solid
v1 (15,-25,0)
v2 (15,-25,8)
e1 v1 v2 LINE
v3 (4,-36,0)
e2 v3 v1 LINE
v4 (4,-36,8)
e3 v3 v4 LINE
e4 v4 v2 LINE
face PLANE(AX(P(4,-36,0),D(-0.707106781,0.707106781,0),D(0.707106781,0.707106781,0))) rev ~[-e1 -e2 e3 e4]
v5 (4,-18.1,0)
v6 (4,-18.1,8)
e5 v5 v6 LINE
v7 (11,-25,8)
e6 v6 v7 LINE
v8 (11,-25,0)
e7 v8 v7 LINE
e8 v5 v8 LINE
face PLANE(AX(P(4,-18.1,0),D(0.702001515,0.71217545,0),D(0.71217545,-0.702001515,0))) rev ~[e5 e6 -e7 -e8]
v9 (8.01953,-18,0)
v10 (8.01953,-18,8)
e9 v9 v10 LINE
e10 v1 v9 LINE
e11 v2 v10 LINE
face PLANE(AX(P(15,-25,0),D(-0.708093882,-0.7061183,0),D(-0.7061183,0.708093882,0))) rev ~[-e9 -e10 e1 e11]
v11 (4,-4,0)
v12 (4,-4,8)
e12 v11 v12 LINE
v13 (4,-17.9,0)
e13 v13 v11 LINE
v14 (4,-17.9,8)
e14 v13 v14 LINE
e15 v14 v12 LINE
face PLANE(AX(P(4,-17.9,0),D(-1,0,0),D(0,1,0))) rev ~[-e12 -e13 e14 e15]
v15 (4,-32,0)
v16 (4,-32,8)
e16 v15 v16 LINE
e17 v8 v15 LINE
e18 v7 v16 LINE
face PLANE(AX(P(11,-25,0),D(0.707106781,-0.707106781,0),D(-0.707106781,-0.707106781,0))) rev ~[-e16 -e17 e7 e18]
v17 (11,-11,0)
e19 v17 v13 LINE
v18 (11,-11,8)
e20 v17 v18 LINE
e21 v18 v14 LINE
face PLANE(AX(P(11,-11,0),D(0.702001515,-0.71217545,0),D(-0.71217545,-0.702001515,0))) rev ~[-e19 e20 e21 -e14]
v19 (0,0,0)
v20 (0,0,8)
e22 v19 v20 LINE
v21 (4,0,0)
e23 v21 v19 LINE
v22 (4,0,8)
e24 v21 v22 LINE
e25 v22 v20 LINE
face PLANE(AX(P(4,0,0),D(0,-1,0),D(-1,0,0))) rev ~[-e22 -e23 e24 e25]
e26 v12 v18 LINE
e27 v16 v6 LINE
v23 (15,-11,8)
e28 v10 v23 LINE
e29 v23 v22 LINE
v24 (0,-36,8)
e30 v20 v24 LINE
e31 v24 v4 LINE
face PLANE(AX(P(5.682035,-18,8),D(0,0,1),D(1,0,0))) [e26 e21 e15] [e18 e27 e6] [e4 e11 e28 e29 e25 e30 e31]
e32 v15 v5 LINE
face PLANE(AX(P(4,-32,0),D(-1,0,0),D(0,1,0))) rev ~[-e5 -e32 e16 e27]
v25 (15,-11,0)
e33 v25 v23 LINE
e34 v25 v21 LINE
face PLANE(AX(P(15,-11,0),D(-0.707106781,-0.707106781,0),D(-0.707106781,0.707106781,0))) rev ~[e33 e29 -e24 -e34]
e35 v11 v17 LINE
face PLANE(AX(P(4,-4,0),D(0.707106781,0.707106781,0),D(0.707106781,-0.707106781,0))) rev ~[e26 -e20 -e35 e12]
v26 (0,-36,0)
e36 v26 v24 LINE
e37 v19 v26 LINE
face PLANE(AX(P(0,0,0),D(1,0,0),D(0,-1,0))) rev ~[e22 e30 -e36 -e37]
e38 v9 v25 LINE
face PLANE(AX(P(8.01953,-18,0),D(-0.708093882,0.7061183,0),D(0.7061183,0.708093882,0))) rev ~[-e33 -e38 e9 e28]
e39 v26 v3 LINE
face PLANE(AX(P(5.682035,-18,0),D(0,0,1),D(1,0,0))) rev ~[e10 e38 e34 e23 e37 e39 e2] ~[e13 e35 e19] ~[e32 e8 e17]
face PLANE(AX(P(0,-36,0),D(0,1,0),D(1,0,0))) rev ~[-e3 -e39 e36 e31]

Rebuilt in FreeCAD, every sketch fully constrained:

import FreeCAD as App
import Part
import Sketcher

V = App.Vector
Q = App.Units.Quantity


def add_polygon(sketch, points):
    """Adds a closed chain of lines whose ends are joined by coincident constraints."""
    first, n = sketch.GeometryCount, len(points)
    for a, b in zip(points, points[1:] + points[:1]):
        sketch.addGeometry(Part.LineSegment(App.Vector(*a, 0), App.Vector(*b, 0)), False)
    for i in range(n):
        sketch.addConstraint(Sketcher.Constraint("Coincident", first + i, 2, first + (i + 1) % n, 1))

doc = App.newDocument("Part")
params = doc.addObject("Spreadsheet::Sheet", "Params")
for row, (alias, value) in enumerate([
    ("sketch1_width", "4 mm"),
    ("sketch1_height", "36 mm"),
    ("sketch1_height2", "13.9 mm"),
    ("pad1_length", "8 mm"),
], start=1):
    params.set(f"A{row}", alias)
    params.set(f"B{row}", "=" + value)
    params.setAlias(f"B{row}", alias)

body = doc.addObject("PartDesign::Body", "Body")

# Sketch on XY plane
sketch1 = body.newObject("Sketcher::SketchObject", "Sketch")
sketch1.AttachmentSupport = (doc.getObject("XY_Plane"), [""])
sketch1.MapMode = "FlatFace"
add_polygon(sketch1, [(4, 0), (0, 0), (0, -36), (4, -36), (15, -25), (8, -18), (15, -11)])  # lines 0-6
add_polygon(sketch1, [(11, -25), (4, -32), (4, -18.1)])  # lines 7-9
add_polygon(sketch1, [(11, -11), (4, -17.9), (4, -4)])  # lines 10-12
sketch1.addConstraint([
    Sketcher.Constraint("Horizontal", 0),
    Sketcher.Constraint("Vertical", 1),
    Sketcher.Constraint("Horizontal", 2),
    Sketcher.Constraint("Vertical", 8),
    Sketcher.Constraint("Vertical", 11),
    Sketcher.Constraint("Coincident", 0, 2, -1, 1),
    Sketcher.Constraint("Perpendicular", 3, 6),
    Sketcher.Constraint("Perpendicular", 6, 7),
    Sketcher.Constraint("Perpendicular", 7, 12),
    Sketcher.Constraint("Horizontal", 3, 2, 9, 2),
    Sketcher.Constraint("Horizontal", 5, 2, 12, 2),
    Sketcher.Constraint("Vertical", 3, 2, 5, 2),
    Sketcher.Constraint("Vertical", 2, 2, 6, 2),
    Sketcher.Constraint("Vertical", 6, 2, 7, 2),
    Sketcher.Constraint("Vertical", 8, 2, 10, 2),
    Sketcher.Constraint("Vertical", 9, 2, 12, 2),
    Sketcher.Constraint("Equal", 8, 11),
    Sketcher.Constraint("Equal", 4, 5),
    Sketcher.Constraint("Equal", 3, 6),
    Sketcher.Constraint("DistanceX", 0, 2, 0, 1, Q("4 mm")),
    Sketcher.Constraint("DistanceY", 1, 2, 1, 1, Q("36 mm")),
    Sketcher.Constraint("DistanceY", 8, 1, 8, 2, Q("13.9 mm")),
    Sketcher.Constraint("DistanceX", -1, 1, 3, 2, Q("15 mm")),
    Sketcher.Constraint("DistanceY", 7, 2, -1, 1, Q("32 mm")),
    Sketcher.Constraint("DistanceX", -1, 1, 4, 2, Q("8.01953 mm")),
])
sketch1.setExpression("Constraints[32]", "Params.sketch1_width")
sketch1.setExpression("Constraints[33]", "Params.sketch1_height")
sketch1.setExpression("Constraints[34]", "Params.sketch1_height2")
pad1 = body.newObject("PartDesign::Pad", "Pad")
pad1.Profile = sketch1
pad1.setExpression("Length", "Params.pad1_length")

doc.recompute()
